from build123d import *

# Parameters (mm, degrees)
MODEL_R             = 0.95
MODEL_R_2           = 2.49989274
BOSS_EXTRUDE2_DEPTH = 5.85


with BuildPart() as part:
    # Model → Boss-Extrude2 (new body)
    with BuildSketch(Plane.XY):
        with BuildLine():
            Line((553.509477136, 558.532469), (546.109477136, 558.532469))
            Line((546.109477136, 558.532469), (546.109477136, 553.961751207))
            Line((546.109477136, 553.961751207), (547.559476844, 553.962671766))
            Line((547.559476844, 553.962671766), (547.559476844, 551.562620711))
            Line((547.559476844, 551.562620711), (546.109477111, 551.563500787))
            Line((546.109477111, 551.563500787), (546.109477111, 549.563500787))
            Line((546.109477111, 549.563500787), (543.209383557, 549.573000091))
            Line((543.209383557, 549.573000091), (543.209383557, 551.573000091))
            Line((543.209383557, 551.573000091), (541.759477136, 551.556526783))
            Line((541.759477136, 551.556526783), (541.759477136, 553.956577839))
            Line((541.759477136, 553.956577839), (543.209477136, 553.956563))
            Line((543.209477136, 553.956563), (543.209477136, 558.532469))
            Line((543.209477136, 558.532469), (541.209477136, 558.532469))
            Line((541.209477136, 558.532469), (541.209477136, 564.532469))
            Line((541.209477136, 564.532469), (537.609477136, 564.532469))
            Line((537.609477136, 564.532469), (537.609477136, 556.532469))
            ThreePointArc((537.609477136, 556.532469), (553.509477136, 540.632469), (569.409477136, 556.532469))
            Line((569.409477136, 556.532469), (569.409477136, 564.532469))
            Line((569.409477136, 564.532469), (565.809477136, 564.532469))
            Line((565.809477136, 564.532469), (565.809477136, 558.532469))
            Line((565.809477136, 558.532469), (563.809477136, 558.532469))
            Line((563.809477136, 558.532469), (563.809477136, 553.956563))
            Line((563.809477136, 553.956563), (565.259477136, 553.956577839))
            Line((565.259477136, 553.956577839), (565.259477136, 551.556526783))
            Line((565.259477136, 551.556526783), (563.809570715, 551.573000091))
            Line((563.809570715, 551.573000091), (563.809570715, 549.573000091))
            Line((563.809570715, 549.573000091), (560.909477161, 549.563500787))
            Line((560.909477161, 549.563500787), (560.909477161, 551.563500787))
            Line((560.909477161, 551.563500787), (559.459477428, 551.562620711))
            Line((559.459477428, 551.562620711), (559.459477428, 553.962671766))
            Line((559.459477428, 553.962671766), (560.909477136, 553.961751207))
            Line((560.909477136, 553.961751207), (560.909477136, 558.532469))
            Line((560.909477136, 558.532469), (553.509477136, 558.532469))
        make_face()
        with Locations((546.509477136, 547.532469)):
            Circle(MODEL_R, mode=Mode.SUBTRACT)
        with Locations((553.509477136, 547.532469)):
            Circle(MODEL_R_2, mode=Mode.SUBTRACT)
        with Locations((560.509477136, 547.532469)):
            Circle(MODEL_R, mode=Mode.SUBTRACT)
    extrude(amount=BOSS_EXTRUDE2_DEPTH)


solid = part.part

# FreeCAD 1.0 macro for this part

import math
import FreeCAD as App
import Part
import Sketcher

V = App.Vector
Q = App.Units.Quantity

doc = App.newDocument("Part")
body = doc.addObject("PartDesign::Body", "Body")

# Sketch on XY plane
sketch1 = body.newObject("Sketcher::SketchObject", "Sketch")
sketch1.AttachmentSupport = (doc.getObject("XY_Plane"), [""])
sketch1.MapMode = "FlatFace"
sketch1.addGeometry(Part.LineSegment(V(546.1, 558.5, 0), V(546.1, 554, 0)), False)
sketch1.addGeometry(Part.LineSegment(V(546.1, 554, 0), V(547.6, 554, 0)), False)
sketch1.addGeometry(Part.LineSegment(V(547.6, 554, 0), V(547.6, 551.6, 0)), False)
sketch1.addGeometry(Part.LineSegment(V(547.6, 551.6, 0), V(546.1, 551.6, 0)), False)
sketch1.addGeometry(Part.LineSegment(V(546.1, 551.6, 0), V(546.1, 549.6, 0)), False)
sketch1.addGeometry(Part.LineSegment(V(546.1, 549.6, 0), V(543.2, 549.6, 0)), False)
sketch1.addGeometry(Part.LineSegment(V(543.2, 549.6, 0), V(543.2, 551.6, 0)), False)
sketch1.addGeometry(Part.LineSegment(V(543.2, 551.6, 0), V(541.8, 551.6, 0)), False)
sketch1.addGeometry(Part.LineSegment(V(541.8, 551.6, 0), V(541.8, 554, 0)), False)
sketch1.addGeometry(Part.LineSegment(V(541.8, 554, 0), V(543.2, 554, 0)), False)
sketch1.addGeometry(Part.LineSegment(V(543.2, 554, 0), V(543.2, 558.5, 0)), False)
sketch1.addGeometry(Part.LineSegment(V(543.2, 558.5, 0), V(541.2, 558.5, 0)), False)
sketch1.addGeometry(Part.LineSegment(V(541.2, 558.5, 0), V(541.2, 564.5, 0)), False)
sketch1.addGeometry(Part.LineSegment(V(541.2, 564.5, 0), V(537.6, 564.5, 0)), False)
sketch1.addGeometry(Part.LineSegment(V(537.6, 564.5, 0), V(537.6, 556.5, 0)), False)
sketch1.addGeometry(Part.ArcOfCircle(Part.Circle(V(553.5, 556.5, 0), V(0, 0, 1), 15.9), math.radians(180), math.radians(360)), False)
sketch1.addGeometry(Part.LineSegment(V(569.4, 556.5, 0), V(569.4, 564.5, 0)), False)
sketch1.addGeometry(Part.LineSegment(V(569.4, 564.5, 0), V(565.8, 564.5, 0)), False)
sketch1.addGeometry(Part.LineSegment(V(565.8, 564.5, 0), V(565.8, 558.5, 0)), False)
sketch1.addGeometry(Part.LineSegment(V(565.8, 558.5, 0), V(563.8, 558.5, 0)), False)
sketch1.addGeometry(Part.LineSegment(V(563.8, 558.5, 0), V(563.8, 554, 0)), False)
sketch1.addGeometry(Part.LineSegment(V(563.8, 554, 0), V(565.3, 554, 0)), False)
sketch1.addGeometry(Part.LineSegment(V(565.3, 554, 0), V(565.3, 551.6, 0)), False)
sketch1.addGeometry(Part.LineSegment(V(565.3, 551.6, 0), V(563.8, 551.6, 0)), False)
sketch1.addGeometry(Part.LineSegment(V(563.8, 551.6, 0), V(563.8, 549.6, 0)), False)
sketch1.addGeometry(Part.LineSegment(V(563.8, 549.6, 0), V(560.9, 549.6, 0)), False)
sketch1.addGeometry(Part.LineSegment(V(560.9, 549.6, 0), V(560.9, 551.6, 0)), False)
sketch1.addGeometry(Part.LineSegment(V(560.9, 551.6, 0), V(559.5, 551.6, 0)), False)
sketch1.addGeometry(Part.LineSegment(V(559.5, 551.6, 0), V(559.5, 554, 0)), False)
sketch1.addGeometry(Part.LineSegment(V(559.5, 554, 0), V(560.9, 554, 0)), False)
sketch1.addGeometry(Part.LineSegment(V(560.9, 554, 0), V(560.9, 558.5, 0)), False)
sketch1.addGeometry(Part.LineSegment(V(560.9, 558.5, 0), V(546.1, 558.5, 0)), False)
sketch1.addGeometry(Part.Circle(V(546.5, 547.5, 0), V(0, 0, 1), 0.9), False)
sketch1.addGeometry(Part.Circle(V(553.5, 547.5, 0), V(0, 0, 1), 2.5), False)
sketch1.addGeometry(Part.Circle(V(560.5, 547.5, 0), V(0, 0, 1), 0.9), False)
sketch1.addConstraint(Sketcher.Constraint("Coincident", 0, 2, 1, 1))
sketch1.addConstraint(Sketcher.Constraint("Coincident", 1, 2, 2, 1))
sketch1.addConstraint(Sketcher.Constraint("Coincident", 2, 2, 3, 1))
sketch1.addConstraint(Sketcher.Constraint("Coincident", 3, 2, 4, 1))
sketch1.addConstraint(Sketcher.Constraint("Coincident", 4, 2, 5, 1))
sketch1.addConstraint(Sketcher.Constraint("Coincident", 5, 2, 6, 1))
sketch1.addConstraint(Sketcher.Constraint("Coincident", 6, 2, 7, 1))
sketch1.addConstraint(Sketcher.Constraint("Coincident", 7, 2, 8, 1))
sketch1.addConstraint(Sketcher.Constraint("Coincident", 8, 2, 9, 1))
sketch1.addConstraint(Sketcher.Constraint("Coincident", 9, 2, 10, 1))
sketch1.addConstraint(Sketcher.Constraint("Coincident", 10, 2, 11, 1))
sketch1.addConstraint(Sketcher.Constraint("Coincident", 11, 2, 12, 1))
sketch1.addConstraint(Sketcher.Constraint("Coincident", 12, 2, 13, 1))
sketch1.addConstraint(Sketcher.Constraint("Coincident", 13, 2, 14, 1))
sketch1.addConstraint(Sketcher.Constraint("Tangent", 14, 2, 15, 1))
sketch1.addConstraint(Sketcher.Constraint("Tangent", 15, 2, 16, 1))
sketch1.addConstraint(Sketcher.Constraint("Coincident", 16, 2, 17, 1))
sketch1.addConstraint(Sketcher.Constraint("Coincident", 17, 2, 18, 1))
sketch1.addConstraint(Sketcher.Constraint("Coincident", 18, 2, 19, 1))
sketch1.addConstraint(Sketcher.Constraint("Coincident", 19, 2, 20, 1))
sketch1.addConstraint(Sketcher.Constraint("Coincident", 20, 2, 21, 1))
sketch1.addConstraint(Sketcher.Constraint("Coincident", 21, 2, 22, 1))
sketch1.addConstraint(Sketcher.Constraint("Coincident", 22, 2, 23, 1))
sketch1.addConstraint(Sketcher.Constraint("Coincident", 23, 2, 24, 1))
sketch1.addConstraint(Sketcher.Constraint("Coincident", 24, 2, 25, 1))
sketch1.addConstraint(Sketcher.Constraint("Coincident", 25, 2, 26, 1))
sketch1.addConstraint(Sketcher.Constraint("Coincident", 26, 2, 27, 1))
sketch1.addConstraint(Sketcher.Constraint("Coincident", 27, 2, 28, 1))
sketch1.addConstraint(Sketcher.Constraint("Coincident", 28, 2, 29, 1))
sketch1.addConstraint(Sketcher.Constraint("Coincident", 29, 2, 30, 1))
sketch1.addConstraint(Sketcher.Constraint("Coincident", 30, 2, 31, 1))
sketch1.addConstraint(Sketcher.Constraint("Coincident", 31, 2, 0, 1))
sketch1.addConstraint(Sketcher.Constraint("Vertical", 0))
sketch1.addConstraint(Sketcher.Constraint("Vertical", 2))
sketch1.addConstraint(Sketcher.Constraint("Vertical", 4))
sketch1.addConstraint(Sketcher.Constraint("Vertical", 6))
sketch1.addConstraint(Sketcher.Constraint("Vertical", 8))
sketch1.addConstraint(Sketcher.Constraint("Vertical", 10))
sketch1.addConstraint(Sketcher.Constraint("Horizontal", 11))
sketch1.addConstraint(Sketcher.Constraint("Vertical", 12))
sketch1.addConstraint(Sketcher.Constraint("Horizontal", 13))
sketch1.addConstraint(Sketcher.Constraint("Vertical", 14))
sketch1.addConstraint(Sketcher.Constraint("Vertical", 16))
sketch1.addConstraint(Sketcher.Constraint("Horizontal", 17))
sketch1.addConstraint(Sketcher.Constraint("Vertical", 18))
sketch1.addConstraint(Sketcher.Constraint("Horizontal", 19))
sketch1.addConstraint(Sketcher.Constraint("Vertical", 20))
sketch1.addConstraint(Sketcher.Constraint("Vertical", 22))
sketch1.addConstraint(Sketcher.Constraint("Vertical", 24))
sketch1.addConstraint(Sketcher.Constraint("Vertical", 26))
sketch1.addConstraint(Sketcher.Constraint("Vertical", 28))
sketch1.addConstraint(Sketcher.Constraint("Vertical", 30))
sketch1.addConstraint(Sketcher.Constraint("Horizontal", 31))
sketch1.addConstraint(Sketcher.Constraint("Equal", 32, 34))
sketch1.addConstraint(Sketcher.Constraint("Horizontal", 32, 3, 33, 3))
sketch1.addConstraint(Sketcher.Constraint("Horizontal", 33, 3, 34, 3))
sketch1.addConstraint(Sketcher.Constraint("Horizontal", 13, 2, 16, 2))
sketch1.addConstraint(Sketcher.Constraint("Horizontal", 11, 2, 18, 2))
sketch1.addConstraint(Sketcher.Constraint("Horizontal", 9, 2, 20, 2))
sketch1.addConstraint(Sketcher.Constraint("Horizontal", 8, 2, 21, 2))
sketch1.addConstraint(Sketcher.Constraint("Horizontal", 7, 2, 22, 2))
sketch1.addConstraint(Sketcher.Constraint("Horizontal", 6, 2, 23, 2))
sketch1.addConstraint(Sketcher.Constraint("Horizontal", 5, 2, 24, 2))
sketch1.addConstraint(Sketcher.Constraint("Horizontal", 4, 2, 25, 2))
sketch1.addConstraint(Sketcher.Constraint("Horizontal", 3, 2, 26, 2))
sketch1.addConstraint(Sketcher.Constraint("Horizontal", 2, 2, 27, 2))
sketch1.addConstraint(Sketcher.Constraint("Horizontal", 1, 2, 28, 2))
sketch1.addConstraint(Sketcher.Constraint("Horizontal", 0, 2, 29, 2))
sketch1.addConstraint(Sketcher.Constraint("Horizontal", 19, 2, 30, 2))
sketch1.addConstraint(Sketcher.Constraint("Vertical", 15, 3, 33, 3))
sketch1.addConstraint(Sketcher.Constraint("Vertical", 0, 2, 3, 2))
sketch1.addConstraint(Sketcher.Constraint("Vertical", 26, 2, 29, 2))
sketch1.addConstraint(Sketcher.Constraint("Equal", 13, 17))
sketch1.addConstraint(Sketcher.Constraint("Equal", 11, 19))
sketch1.addConstraint(Sketcher.Constraint("Equal", 19, 4))
sketch1.addConstraint(Sketcher.Constraint("Equal", 4, 6))
sketch1.addConstraint(Sketcher.Constraint("Equal", 2, 8))
sketch1.addConstraint(Sketcher.Constraint("Equal", 3, 7))
sketch1.addConstraint(Sketcher.Constraint("Equal", 7, 9))
sketch1.addConstraint(Sketcher.Constraint("Equal", 9, 21))
sketch1.addConstraint(Sketcher.Constraint("Equal", 21, 23))
sketch1.addConstraint(Sketcher.Constraint("Equal", 5, 25))
sketch1.addConstraint(Sketcher.Constraint("Equal", 23, 27))
sketch1.addConstraint(Sketcher.Constraint("Diameter", 32, Q("1.9 mm")))
sketch1.addConstraint(Sketcher.Constraint("Radius", 15, Q("15.9 mm")))
sketch1.addConstraint(Sketcher.Constraint("DistanceX", 11, 2, 11, 1, Q("2 mm")))
sketch1.addConstraint(Sketcher.Constraint("DistanceY", 12, 1, 12, 2, Q("6 mm")))
sketch1.addConstraint(Sketcher.Constraint("DistanceY", 14, 2, 14, 1, Q("8 mm")))
sketch1.addConstraint(Sketcher.Constraint("DistanceX", 13, 2, 13, 1, Q("3.6 mm")))
sketch1.addConstraint(Sketcher.Constraint("DistanceX", 31, 2, 31, 1, Q("14.8 mm")))
sketch1.addConstraint(Sketcher.Constraint("DistanceX", 32, 3, 15, 3, Q("7 mm")))
sketch1.addConstraint(Sketcher.Constraint("DistanceY", 32, 3, 15, 3, Q("9 mm")))
sketch1.addConstraint(Sketcher.Constraint("DistanceX", 33, 3, 34, 3, Q("7 mm")))
sketch1.addConstraint(Sketcher.Constraint("Distance", 1, Q("1.45 mm")))
sketch1.addConstraint(Sketcher.Constraint("Diameter", 33, Q("4.999785 mm")))
sketch1.addConstraint(Sketcher.Constraint("DistanceY", -1, 1, 5, 2, Q("549.573 mm")))
sketch1.addConstraint(Sketcher.Constraint("DistanceY", 2, 2, 2, 1, Q("2.400051 mm")))
sketch1.addConstraint(Sketcher.Constraint("DistanceY", -1, 1, 3, 2, Q("551.563501 mm")))
sketch1.addConstraint(Sketcher.Constraint("Distance", 5, Q("2.900109 mm")))
sketch1.addConstraint(Sketcher.Constraint("DistanceY", 0, 2, 0, 1, Q("4.570718 mm")))
sketch1.addConstraint(Sketcher.Constraint("DistanceY", 10, 1, 10, 2, Q("4.575906 mm")))
sketch1.addConstraint(Sketcher.Constraint("DistanceY", -1, 1, 15, 3, Q("556.532469 mm")))
sketch1.addConstraint(Sketcher.Constraint("DistanceY", -1, 1, 1, 2, Q("553.962672 mm")))
sketch1.addConstraint(Sketcher.Constraint("DistanceX", -1, 1, 23, 2, Q("563.809571 mm")))
pad1 = body.newObject("PartDesign::Pad", "Pad")
pad1.Profile = sketch1
pad1.Length = 5.85

doc.recompute()
